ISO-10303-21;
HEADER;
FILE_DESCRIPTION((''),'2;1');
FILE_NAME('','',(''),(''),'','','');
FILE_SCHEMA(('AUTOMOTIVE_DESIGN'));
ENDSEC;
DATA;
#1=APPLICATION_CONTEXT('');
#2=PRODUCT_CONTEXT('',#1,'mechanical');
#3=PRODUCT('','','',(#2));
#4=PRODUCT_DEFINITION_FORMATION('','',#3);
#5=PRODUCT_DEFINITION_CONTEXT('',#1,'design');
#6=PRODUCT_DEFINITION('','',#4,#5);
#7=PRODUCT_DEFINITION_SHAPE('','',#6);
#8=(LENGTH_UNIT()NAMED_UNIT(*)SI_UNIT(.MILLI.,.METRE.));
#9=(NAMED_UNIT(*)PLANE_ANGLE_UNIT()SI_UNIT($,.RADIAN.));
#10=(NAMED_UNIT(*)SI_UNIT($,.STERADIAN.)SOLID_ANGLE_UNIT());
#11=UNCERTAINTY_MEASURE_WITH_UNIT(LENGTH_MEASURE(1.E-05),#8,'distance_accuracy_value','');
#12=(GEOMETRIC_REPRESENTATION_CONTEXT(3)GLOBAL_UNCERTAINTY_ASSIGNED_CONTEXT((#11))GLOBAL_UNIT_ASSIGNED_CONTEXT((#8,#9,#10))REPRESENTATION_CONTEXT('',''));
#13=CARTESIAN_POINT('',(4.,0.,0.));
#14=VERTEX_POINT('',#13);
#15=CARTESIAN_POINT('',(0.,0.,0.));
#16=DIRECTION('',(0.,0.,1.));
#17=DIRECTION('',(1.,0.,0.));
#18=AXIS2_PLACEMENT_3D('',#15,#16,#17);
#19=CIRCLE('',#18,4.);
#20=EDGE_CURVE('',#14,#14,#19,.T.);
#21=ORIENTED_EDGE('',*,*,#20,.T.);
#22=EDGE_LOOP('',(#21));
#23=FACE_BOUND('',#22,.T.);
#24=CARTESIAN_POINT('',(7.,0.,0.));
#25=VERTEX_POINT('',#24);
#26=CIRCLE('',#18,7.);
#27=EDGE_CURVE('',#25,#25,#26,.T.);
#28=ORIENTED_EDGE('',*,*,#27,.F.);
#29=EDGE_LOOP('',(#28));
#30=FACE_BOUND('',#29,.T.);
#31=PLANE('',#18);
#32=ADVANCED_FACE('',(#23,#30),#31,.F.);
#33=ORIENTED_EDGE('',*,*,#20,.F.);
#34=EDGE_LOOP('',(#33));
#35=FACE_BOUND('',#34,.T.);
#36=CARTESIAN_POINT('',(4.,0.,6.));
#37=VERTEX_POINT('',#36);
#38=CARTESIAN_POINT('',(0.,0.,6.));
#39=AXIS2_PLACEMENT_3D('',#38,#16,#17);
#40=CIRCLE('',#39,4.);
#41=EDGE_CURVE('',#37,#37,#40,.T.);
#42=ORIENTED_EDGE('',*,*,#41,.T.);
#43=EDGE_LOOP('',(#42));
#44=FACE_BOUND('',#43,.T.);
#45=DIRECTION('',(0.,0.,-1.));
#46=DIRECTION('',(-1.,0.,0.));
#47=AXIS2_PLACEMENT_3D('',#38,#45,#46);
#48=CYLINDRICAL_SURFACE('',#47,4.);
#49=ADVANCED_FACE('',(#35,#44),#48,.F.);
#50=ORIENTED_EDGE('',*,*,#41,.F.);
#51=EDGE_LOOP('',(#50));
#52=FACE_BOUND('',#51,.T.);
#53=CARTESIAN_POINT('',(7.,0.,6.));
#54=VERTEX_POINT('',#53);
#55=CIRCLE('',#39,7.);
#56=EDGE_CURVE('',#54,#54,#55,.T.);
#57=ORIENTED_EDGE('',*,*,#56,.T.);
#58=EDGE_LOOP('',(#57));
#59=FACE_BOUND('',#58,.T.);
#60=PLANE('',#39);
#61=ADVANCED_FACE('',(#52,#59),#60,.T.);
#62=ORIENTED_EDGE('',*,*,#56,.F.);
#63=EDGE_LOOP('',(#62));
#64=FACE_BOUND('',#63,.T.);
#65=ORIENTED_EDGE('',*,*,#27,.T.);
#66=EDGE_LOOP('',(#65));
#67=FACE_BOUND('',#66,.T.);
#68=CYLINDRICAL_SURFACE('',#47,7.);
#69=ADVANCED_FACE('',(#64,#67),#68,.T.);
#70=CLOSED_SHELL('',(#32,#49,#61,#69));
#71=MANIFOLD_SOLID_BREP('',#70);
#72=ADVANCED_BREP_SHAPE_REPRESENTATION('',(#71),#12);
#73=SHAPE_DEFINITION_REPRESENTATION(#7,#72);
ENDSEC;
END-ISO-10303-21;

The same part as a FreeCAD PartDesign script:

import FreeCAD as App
import Part
import Sketcher

doc = App.newDocument("Part")
body = doc.addObject("PartDesign::Body", "Body")

# Sketch on XY plane
sketch1 = body.newObject("Sketcher::SketchObject", "Sketch")
sketch1.AttachmentSupport = (doc.getObject("XY_Plane"), [""])
sketch1.MapMode = "FlatFace"
sketch1.addGeometry([
    Part.Circle(App.Vector(0, 0, 0), App.Vector(0, 0, 1), 7),
    Part.Circle(App.Vector(0, 0, 0), App.Vector(0, 0, 1), 4),
], False)
sketch1.addConstraint([
    Sketcher.Constraint("Coincident", 0, 3, -1, 1),
    Sketcher.Constraint("Coincident", 1, 3, -1, 1),
    Sketcher.Constraint("Diameter", 0, 14.0),
    Sketcher.Constraint("Diameter", 1, 8.0),
])
pad1 = body.newObject("PartDesign::Pad", "Pad")
pad1.Profile = sketch1
pad1.Length = 6

doc.recompute()
